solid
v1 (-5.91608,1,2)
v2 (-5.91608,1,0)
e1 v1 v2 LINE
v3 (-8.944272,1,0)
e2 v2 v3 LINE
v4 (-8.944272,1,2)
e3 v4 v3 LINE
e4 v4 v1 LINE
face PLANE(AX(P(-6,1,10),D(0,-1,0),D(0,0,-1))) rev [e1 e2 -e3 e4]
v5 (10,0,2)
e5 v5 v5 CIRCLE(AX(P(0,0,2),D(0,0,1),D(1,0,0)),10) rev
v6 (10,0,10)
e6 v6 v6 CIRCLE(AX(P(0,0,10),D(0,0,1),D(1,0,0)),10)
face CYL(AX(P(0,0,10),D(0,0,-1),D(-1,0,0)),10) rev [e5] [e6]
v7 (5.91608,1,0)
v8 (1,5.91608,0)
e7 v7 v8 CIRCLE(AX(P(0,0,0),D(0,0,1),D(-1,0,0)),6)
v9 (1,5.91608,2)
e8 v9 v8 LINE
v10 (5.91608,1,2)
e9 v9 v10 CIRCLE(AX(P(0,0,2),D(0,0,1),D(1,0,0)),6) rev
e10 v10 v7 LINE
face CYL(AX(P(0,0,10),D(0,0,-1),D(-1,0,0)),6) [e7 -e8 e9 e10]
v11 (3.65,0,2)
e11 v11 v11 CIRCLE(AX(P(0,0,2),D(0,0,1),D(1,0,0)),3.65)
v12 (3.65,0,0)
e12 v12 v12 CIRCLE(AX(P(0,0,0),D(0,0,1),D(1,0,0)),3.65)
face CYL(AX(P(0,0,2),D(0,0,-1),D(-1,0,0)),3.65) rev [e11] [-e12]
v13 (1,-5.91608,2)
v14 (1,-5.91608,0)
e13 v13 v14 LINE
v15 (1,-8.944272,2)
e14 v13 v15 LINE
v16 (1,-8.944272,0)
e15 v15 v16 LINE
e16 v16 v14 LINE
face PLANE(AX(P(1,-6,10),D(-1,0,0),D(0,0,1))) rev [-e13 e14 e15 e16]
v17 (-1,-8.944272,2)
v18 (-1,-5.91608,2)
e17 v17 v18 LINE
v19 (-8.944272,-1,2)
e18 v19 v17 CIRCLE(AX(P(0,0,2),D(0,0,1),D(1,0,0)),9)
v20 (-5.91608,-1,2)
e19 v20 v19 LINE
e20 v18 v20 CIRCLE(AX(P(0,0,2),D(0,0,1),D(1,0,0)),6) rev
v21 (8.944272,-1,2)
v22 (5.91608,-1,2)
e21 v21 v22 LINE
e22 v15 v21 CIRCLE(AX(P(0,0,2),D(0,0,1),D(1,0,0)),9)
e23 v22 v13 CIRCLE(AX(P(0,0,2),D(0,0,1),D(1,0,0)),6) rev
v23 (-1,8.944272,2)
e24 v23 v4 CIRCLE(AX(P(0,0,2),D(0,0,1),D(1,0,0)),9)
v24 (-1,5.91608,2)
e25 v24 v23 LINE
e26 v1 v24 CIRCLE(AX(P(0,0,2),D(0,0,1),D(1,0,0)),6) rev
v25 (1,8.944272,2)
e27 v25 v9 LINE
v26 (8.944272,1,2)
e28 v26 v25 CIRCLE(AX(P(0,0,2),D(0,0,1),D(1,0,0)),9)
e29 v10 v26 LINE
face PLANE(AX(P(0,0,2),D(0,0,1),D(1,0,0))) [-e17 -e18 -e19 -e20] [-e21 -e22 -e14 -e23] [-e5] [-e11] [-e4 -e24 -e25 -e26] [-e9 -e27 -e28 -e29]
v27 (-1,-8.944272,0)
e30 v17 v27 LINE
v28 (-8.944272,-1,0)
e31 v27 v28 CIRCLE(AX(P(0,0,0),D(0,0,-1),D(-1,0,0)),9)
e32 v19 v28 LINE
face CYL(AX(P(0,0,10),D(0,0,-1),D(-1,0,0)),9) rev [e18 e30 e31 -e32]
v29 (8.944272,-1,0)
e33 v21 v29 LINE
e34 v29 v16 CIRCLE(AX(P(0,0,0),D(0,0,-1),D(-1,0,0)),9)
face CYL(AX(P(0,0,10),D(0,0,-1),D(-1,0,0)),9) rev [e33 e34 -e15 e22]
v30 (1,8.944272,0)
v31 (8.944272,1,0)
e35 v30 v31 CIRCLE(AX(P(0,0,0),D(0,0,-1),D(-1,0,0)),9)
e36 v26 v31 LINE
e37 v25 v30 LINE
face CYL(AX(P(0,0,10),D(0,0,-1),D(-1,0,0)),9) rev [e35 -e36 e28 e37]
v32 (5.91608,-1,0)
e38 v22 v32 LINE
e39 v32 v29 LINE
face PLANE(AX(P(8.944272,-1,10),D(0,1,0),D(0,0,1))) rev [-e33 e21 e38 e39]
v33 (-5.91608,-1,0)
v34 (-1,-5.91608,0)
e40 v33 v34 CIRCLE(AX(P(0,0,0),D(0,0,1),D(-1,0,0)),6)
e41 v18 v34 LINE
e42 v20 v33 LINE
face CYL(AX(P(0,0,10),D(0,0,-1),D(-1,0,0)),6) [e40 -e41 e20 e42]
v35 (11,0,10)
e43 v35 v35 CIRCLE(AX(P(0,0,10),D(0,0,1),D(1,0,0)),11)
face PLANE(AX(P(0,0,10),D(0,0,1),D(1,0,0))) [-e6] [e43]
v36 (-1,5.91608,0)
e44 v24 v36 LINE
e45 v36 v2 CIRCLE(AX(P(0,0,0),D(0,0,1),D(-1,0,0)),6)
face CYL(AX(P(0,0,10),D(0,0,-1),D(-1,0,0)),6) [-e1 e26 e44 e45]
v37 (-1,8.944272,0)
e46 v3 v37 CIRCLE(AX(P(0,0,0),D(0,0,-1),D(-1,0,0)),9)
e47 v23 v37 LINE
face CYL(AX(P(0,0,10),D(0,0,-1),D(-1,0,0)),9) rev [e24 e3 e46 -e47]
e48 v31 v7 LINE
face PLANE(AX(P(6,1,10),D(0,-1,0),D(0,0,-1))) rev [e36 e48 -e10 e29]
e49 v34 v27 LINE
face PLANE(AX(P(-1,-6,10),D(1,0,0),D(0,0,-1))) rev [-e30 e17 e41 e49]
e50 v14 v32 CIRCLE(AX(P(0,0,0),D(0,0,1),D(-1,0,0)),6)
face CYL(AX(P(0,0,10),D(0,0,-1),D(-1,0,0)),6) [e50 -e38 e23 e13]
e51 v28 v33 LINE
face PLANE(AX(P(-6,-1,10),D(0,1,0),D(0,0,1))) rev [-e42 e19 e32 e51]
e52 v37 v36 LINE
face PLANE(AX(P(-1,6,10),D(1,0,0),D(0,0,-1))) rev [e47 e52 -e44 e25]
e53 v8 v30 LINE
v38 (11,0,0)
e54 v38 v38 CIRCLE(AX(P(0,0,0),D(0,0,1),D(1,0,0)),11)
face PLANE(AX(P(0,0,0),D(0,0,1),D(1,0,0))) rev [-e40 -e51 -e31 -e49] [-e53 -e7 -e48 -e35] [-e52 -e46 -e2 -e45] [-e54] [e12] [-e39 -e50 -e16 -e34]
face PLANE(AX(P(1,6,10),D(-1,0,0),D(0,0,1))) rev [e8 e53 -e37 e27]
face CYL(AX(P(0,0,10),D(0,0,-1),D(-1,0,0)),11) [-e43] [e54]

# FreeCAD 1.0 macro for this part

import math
import FreeCAD as App
import Part
import Sketcher
Q = App.Units.Quantity

doc = App.newDocument("Part")
body = doc.addObject("PartDesign::Body", "Body")

sketch1 = doc.addObject("Sketcher::SketchObject", "Sketch")
body.addObject(sketch1)
sketch1.AttachmentSupport = (doc.XY_Plane, [""])
sketch1.MapMode = "FlatFace"
sketch1.addGeometry([
    Part.Circle(App.Vector(0, 0, 0), App.Vector(0, 0, 1), 10),
    Part.Circle(App.Vector(0, 0, 0), App.Vector(0, 0, 1), 3.6),
], False)
sketch1.addConstraint([
    Sketcher.Constraint("Coincident", 0, 3, -1, 1),
    Sketcher.Constraint("Coincident", 1, 3, -1, 1),
    Sketcher.Constraint("Diameter", 0, Q("20 mm")),
    Sketcher.Constraint("Diameter", 1, Q("7.3 mm")),
])
pad1 = doc.addObject("PartDesign::Pad", "Pad")
body.addObject(pad1)
pad1.Profile = sketch1
pad1.Length = 2

sketch2 = doc.addObject("Sketcher::SketchObject", "Sketch001")
body.addObject(sketch2)
sketch2.AttachmentSupport = (doc.XY_Plane, [""])
sketch2.MapMode = "FlatFace"
sketch2.addGeometry([
    Part.Circle(App.Vector(0, 0, 0), App.Vector(0, 0, 1), 11),
    Part.Circle(App.Vector(0, 0, 0), App.Vector(0, 0, 1), 10),
], False)
sketch2.addConstraint([
    Sketcher.Constraint("Coincident", 0, 3, -1, 1),
    Sketcher.Constraint("Coincident", 1, 3, -1, 1),
    Sketcher.Constraint("Diameter", 0, Q("22 mm")),
    Sketcher.Constraint("Diameter", 1, Q("20 mm")),
])
pad2 = doc.addObject("PartDesign::Pad", "Pad001")
body.addObject(pad2)
pad2.Profile = sketch2
pad2.Length = 10

sketch3 = doc.addObject("Sketcher::SketchObject", "Sketch002")
body.addObject(sketch3)
sketch3.AttachmentSupport = (doc.XY_Plane, [""])
sketch3.MapMode = "FlatFace"
sketch3.addGeometry([
    Part.LineSegment(App.Vector(5.9, -1, 0), App.Vector(8.9, -1, 0)),
    Part.ArcOfCircle(Part.Circle(App.Vector(0, 0, 0), App.Vector(0, 0, 1), 9), math.radians(-84), math.radians(-6)),
    Part.LineSegment(App.Vector(1, -8.9, 0), App.Vector(1, -5.9, 0)),
    Part.ArcOfCircle(Part.Circle(App.Vector(0, 0, 0), App.Vector(0, 0, 1), 6), math.radians(-80), math.radians(-10)),
    Part.LineSegment(App.Vector(8.9, 1, 0), App.Vector(5.9, 1, 0)),
    Part.ArcOfCircle(Part.Circle(App.Vector(0, 0, 0), App.Vector(0, 0, 1), 6), math.radians(10), math.radians(80)),
    Part.LineSegment(App.Vector(1, 5.9, 0), App.Vector(1, 8.9, 0)),
    Part.ArcOfCircle(Part.Circle(App.Vector(0, 0, 0), App.Vector(0, 0, 1), 9), math.radians(6), math.radians(84)),
    Part.ArcOfCircle(Part.Circle(App.Vector(0, 0, 0), App.Vector(0, 0, 1), 9), math.radians(96), math.radians(174)),
    Part.LineSegment(App.Vector(-1, 8.9, 0), App.Vector(-1, 5.9, 0)),
    Part.ArcOfCircle(Part.Circle(App.Vector(0, 0, 0), App.Vector(0, 0, 1), 6), math.radians(100), math.radians(170)),
    Part.LineSegment(App.Vector(-5.9, 1, 0), App.Vector(-8.9, 1, 0)),
    Part.ArcOfCircle(Part.Circle(App.Vector(0, 0, 0), App.Vector(0, 0, 1), 9), math.radians(-174), math.radians(-96)),
    Part.LineSegment(App.Vector(-8.9, -1, 0), App.Vector(-5.9, -1, 0)),
    Part.ArcOfCircle(Part.Circle(App.Vector(0, 0, 0), App.Vector(0, 0, 1), 6), math.radians(-170), math.radians(-100)),
    Part.LineSegment(App.Vector(-1, -5.9, 0), App.Vector(-1, -8.9, 0)),
], False)
sketch3.addConstraint([
    Sketcher.Constraint("Coincident", 0, 2, 1, 2),
    Sketcher.Constraint("Coincident", 1, 1, 2, 1),
    Sketcher.Constraint("Coincident", 2, 2, 3, 1),
    Sketcher.Constraint("Coincident", 3, 2, 0, 1),
    Sketcher.Constraint("Coincident", 4, 2, 5, 1),
    Sketcher.Constraint("Coincident", 5, 2, 6, 1),
    Sketcher.Constraint("Coincident", 6, 2, 7, 2),
    Sketcher.Constraint("Coincident", 7, 1, 4, 1),
    Sketcher.Constraint("Coincident", 8, 1, 9, 1),
    Sketcher.Constraint("Coincident", 9, 2, 10, 1),
    Sketcher.Constraint("Coincident", 10, 2, 11, 1),
    Sketcher.Constraint("Coincident", 11, 2, 8, 2),
    Sketcher.Constraint("Coincident", 12, 1, 13, 1),
    Sketcher.Constraint("Coincident", 13, 2, 14, 1),
    Sketcher.Constraint("Coincident", 14, 2, 15, 1),
    Sketcher.Constraint("Coincident", 15, 2, 12, 2),
    Sketcher.Constraint("Horizontal", 0),
    Sketcher.Constraint("Vertical", 2),
    Sketcher.Constraint("Horizontal", 4),
    Sketcher.Constraint("Vertical", 6),
    Sketcher.Constraint("Vertical", 9),
    Sketcher.Constraint("Horizontal", 11),
    Sketcher.Constraint("Horizontal", 13),
    Sketcher.Constraint("Vertical", 15),
    Sketcher.Constraint("Coincident", 1, 3, -1, 1),
    Sketcher.Constraint("Coincident", 3, 3, -1, 1),
    Sketcher.Constraint("Coincident", 5, 3, -1, 1),
    Sketcher.Constraint("Coincident", 7, 3, -1, 1),
    Sketcher.Constraint("Coincident", 8, 3, -1, 1),
    Sketcher.Constraint("Coincident", 10, 3, -1, 1),
    Sketcher.Constraint("Coincident", 12, 3, -1, 1),
    Sketcher.Constraint("Coincident", 14, 3, -1, 1),
    Sketcher.Constraint("Equal", 3, 5),
    Sketcher.Constraint("Equal", 1, 7),
    Sketcher.Constraint("Equal", 7, 8),
    Sketcher.Constraint("Equal", 5, 10),
    Sketcher.Constraint("Equal", 8, 12),
    Sketcher.Constraint("Equal", 10, 14),
    Sketcher.Constraint("Horizontal", 6, 2, 8, 1),
    Sketcher.Constraint("Horizontal", 7, 1, 10, 2),
    Sketcher.Constraint("Horizontal", 3, 2, 12, 1),
    Sketcher.Constraint("Horizontal", 2, 2, 14, 2),
    Sketcher.Constraint("Vertical", 3, 2, 4, 2),
    Sketcher.Constraint("Vertical", 2, 2, 5, 2),
    Sketcher.Constraint("Equal", 13, 2),
    Sketcher.Constraint("Radius", 1, Q("9 mm")),
    Sketcher.Constraint("Radius", 3, Q("6 mm")),
    Sketcher.Constraint("DistanceY", 0, 2, -1, 1, Q("1 mm")),
])
pocket1 = doc.addObject("PartDesign::Pocket", "Pocket")
body.addObject(pocket1)
pocket1.Profile = sketch3
pocket1.Length = 10
pocket1.Reversed = True

doc.recompute()
